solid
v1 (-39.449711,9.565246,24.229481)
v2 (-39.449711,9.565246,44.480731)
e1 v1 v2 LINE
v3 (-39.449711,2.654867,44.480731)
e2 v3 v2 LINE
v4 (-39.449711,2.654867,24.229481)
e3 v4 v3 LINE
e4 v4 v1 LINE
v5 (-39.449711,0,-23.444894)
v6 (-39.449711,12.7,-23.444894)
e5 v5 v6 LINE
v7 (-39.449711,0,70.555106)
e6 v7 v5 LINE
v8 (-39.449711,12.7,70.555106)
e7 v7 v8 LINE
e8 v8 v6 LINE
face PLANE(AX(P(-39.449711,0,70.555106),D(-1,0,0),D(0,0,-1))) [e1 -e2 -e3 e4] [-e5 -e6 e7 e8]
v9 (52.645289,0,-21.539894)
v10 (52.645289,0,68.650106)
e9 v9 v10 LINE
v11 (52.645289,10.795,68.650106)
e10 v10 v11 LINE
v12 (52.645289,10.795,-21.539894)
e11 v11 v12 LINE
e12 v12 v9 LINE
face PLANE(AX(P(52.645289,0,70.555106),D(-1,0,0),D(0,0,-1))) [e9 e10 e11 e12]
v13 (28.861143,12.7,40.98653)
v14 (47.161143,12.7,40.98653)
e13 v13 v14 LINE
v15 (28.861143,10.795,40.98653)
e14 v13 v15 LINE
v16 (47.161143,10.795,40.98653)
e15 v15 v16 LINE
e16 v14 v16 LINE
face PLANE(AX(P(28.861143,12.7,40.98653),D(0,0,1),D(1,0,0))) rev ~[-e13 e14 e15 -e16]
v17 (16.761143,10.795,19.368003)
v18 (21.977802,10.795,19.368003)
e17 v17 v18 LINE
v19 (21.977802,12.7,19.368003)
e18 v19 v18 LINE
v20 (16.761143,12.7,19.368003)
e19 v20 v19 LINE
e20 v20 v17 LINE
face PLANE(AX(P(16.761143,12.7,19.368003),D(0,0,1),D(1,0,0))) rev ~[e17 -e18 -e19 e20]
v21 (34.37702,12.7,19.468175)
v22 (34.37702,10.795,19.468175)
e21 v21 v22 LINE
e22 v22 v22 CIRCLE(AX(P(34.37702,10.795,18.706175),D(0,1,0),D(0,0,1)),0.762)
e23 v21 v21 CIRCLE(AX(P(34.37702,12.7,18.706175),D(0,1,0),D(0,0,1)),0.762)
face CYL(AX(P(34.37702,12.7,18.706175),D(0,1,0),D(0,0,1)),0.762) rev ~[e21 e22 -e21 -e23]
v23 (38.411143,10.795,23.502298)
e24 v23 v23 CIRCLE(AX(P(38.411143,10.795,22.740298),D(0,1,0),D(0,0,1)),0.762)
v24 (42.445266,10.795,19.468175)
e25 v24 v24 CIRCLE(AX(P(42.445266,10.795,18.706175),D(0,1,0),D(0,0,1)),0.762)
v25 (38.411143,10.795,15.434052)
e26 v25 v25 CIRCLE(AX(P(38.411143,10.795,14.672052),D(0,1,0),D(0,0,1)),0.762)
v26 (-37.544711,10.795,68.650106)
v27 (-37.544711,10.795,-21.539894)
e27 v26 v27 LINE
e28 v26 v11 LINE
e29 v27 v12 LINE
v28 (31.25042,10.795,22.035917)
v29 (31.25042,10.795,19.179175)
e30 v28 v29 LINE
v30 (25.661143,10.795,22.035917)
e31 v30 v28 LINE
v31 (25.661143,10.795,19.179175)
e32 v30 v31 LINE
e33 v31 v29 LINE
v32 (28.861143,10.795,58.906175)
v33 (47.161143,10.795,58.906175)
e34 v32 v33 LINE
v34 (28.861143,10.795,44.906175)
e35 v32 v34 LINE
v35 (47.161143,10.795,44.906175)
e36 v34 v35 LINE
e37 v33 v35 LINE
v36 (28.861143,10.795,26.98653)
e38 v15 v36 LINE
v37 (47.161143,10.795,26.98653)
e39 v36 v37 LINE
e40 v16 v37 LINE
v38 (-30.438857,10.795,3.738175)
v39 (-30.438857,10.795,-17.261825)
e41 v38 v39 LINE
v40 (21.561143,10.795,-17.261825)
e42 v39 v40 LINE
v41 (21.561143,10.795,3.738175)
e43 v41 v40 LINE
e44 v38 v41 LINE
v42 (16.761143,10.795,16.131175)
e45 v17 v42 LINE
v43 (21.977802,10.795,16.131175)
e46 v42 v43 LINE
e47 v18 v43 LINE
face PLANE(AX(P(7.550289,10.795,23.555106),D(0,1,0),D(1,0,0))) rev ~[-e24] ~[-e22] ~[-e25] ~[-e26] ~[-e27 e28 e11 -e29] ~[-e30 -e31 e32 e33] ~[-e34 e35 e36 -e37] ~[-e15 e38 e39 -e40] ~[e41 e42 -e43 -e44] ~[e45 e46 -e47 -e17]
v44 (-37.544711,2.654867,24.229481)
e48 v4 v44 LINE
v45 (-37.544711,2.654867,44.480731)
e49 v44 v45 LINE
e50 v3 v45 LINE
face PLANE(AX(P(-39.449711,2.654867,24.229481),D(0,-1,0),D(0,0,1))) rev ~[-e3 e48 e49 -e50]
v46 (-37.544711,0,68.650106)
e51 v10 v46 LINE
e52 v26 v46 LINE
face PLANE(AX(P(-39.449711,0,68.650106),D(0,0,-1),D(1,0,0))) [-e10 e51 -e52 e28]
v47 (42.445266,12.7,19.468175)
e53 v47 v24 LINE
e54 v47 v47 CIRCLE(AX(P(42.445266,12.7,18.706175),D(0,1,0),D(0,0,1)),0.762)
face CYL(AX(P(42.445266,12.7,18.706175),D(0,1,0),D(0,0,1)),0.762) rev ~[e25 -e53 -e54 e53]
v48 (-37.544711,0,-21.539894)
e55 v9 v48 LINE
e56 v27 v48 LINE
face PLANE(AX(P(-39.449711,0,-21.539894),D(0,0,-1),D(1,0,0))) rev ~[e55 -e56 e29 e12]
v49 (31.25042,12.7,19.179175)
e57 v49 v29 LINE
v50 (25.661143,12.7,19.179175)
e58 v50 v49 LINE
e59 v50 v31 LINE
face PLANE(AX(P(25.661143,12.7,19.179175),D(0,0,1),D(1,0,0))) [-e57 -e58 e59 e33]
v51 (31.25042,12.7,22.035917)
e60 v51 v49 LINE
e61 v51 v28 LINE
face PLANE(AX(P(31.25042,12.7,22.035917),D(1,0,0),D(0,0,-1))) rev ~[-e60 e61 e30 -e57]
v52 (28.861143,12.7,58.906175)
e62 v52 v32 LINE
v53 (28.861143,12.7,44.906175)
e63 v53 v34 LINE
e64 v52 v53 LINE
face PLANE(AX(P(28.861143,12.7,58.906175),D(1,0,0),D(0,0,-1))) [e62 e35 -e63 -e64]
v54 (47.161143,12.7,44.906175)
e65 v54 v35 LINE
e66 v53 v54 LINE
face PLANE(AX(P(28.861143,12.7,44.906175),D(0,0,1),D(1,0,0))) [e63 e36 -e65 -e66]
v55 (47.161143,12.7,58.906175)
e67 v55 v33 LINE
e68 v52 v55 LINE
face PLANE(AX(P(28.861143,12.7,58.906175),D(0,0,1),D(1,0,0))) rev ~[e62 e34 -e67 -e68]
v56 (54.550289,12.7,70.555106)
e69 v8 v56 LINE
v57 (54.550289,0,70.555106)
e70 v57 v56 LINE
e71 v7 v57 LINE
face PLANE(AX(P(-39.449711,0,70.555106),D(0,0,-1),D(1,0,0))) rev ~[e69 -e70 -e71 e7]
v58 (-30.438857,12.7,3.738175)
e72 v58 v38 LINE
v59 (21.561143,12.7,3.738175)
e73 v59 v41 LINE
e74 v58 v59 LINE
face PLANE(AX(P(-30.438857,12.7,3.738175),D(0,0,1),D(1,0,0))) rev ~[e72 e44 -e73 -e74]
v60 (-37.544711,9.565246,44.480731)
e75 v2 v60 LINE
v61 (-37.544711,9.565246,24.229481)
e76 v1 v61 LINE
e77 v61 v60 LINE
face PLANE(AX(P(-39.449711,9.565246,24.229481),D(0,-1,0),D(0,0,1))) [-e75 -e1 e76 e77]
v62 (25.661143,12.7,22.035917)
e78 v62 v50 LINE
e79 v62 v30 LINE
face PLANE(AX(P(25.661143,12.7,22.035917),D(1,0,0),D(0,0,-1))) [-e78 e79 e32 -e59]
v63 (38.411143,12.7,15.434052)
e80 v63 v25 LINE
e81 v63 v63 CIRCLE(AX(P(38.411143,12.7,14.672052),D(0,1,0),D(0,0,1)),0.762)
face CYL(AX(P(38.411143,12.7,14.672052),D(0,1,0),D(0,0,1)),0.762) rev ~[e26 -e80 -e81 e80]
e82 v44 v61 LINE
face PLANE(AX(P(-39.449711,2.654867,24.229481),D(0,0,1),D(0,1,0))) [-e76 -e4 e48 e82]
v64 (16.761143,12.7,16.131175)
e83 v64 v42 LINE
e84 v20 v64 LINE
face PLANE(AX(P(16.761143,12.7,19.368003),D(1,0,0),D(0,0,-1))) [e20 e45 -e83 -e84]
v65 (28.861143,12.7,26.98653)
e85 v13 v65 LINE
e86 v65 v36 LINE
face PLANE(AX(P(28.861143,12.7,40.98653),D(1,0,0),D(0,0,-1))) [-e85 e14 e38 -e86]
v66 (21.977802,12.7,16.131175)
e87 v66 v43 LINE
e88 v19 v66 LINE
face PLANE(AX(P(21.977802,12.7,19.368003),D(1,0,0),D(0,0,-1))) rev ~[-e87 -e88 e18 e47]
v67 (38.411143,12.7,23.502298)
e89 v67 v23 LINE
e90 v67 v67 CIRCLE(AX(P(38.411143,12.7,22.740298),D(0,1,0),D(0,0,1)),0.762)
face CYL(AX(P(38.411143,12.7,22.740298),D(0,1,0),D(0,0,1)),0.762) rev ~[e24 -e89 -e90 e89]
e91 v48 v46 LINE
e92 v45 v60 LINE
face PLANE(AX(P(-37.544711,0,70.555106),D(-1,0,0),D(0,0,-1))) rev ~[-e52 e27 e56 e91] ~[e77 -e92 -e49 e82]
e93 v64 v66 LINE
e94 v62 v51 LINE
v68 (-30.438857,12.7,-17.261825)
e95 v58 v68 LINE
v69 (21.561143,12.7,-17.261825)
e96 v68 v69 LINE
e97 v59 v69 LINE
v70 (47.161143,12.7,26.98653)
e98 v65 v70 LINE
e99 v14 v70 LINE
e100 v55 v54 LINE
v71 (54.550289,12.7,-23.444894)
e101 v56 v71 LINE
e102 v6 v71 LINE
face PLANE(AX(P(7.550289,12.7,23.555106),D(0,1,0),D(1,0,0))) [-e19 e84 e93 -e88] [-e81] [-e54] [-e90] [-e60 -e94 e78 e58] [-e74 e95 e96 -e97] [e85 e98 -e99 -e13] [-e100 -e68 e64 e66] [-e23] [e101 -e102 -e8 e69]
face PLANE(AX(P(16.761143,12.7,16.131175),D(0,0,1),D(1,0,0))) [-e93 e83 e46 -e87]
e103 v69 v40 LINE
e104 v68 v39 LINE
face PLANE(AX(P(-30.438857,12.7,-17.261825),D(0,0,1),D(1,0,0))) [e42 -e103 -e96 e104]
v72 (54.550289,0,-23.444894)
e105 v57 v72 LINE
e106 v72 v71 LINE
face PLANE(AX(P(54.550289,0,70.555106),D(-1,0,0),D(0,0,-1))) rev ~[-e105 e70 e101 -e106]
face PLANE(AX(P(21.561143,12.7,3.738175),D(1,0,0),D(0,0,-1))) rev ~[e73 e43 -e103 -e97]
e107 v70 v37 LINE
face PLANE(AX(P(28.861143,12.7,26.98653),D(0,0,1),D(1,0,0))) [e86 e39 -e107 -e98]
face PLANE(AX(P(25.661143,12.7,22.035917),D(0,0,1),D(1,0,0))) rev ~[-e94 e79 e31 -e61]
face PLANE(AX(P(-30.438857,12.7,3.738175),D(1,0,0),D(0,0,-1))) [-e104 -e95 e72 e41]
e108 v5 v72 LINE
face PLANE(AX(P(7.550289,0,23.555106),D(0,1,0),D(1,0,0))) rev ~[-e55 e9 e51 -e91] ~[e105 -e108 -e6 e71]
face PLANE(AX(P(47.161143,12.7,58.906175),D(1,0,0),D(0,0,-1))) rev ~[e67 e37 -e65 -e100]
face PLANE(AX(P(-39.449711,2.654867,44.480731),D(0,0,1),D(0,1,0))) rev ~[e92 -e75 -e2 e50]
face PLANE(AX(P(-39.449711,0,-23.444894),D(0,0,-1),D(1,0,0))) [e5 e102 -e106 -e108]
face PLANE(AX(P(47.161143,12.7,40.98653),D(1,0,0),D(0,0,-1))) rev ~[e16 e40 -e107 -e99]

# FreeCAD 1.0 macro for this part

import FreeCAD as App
import Part
import Sketcher
from FreeCAD import Vector


def faces_at(feature, points):
    """Names of the faces that lie closest to the given points."""
    faces = feature.Shape.Faces
    near = lambda p: min(range(len(faces)), key=lambda i: faces[i].distToShape(Part.Vertex(*p))[0])
    return sorted({f"Face{near(p) + 1}" for p in points})


def add_polygon(sketch, points):
    """Adds a closed chain of lines whose ends are joined by coincident constraints."""
    first, n = sketch.GeometryCount, len(points)
    for a, b in zip(points, points[1:] + points[:1]):
        sketch.addGeometry(Part.LineSegment(App.Vector(*a, 0), App.Vector(*b, 0)), False)
    for i in range(n):
        sketch.addConstraint(Sketcher.Constraint("Coincident", first + i, 2, first + (i + 1) % n, 1))

doc = App.newDocument("Part")
body = doc.addObject("PartDesign::Body", "Body")

sketch1 = doc.addObject("Sketcher::SketchObject", "Sketch")
body.addObject(sketch1)
sketch1.AttachmentSupport = (doc.XZ_Plane, [""])
sketch1.MapMode = "FlatFace"
add_polygon(sketch1, [(-39, -23), (-39, 71), (55, 71), (55, -23)])
sketch1.addConstraint([
    Sketcher.Constraint("Vertical", 0),
    Sketcher.Constraint("Horizontal", 1),
    Sketcher.Constraint("Vertical", 2),
    Sketcher.Constraint("Horizontal", 3),
    Sketcher.Constraint("Equal", 3, 0),
    Sketcher.Constraint("DistanceX", 1, 1, 1, 2, 94.0),
    Sketcher.Constraint("DistanceX", 0, 2, -1, 1, 39.449711),
    Sketcher.Constraint("DistanceY", -1, 1, 0, 2, 70.555106),
])
pad1 = doc.addObject("PartDesign::Pad", "Pad")
body.addObject(pad1)
pad1.Profile = sketch1
pad1.Length = 12.7
pad1.Reversed = True
doc.recompute()

thickness = doc.addObject("PartDesign::Thickness", "Thickness")
body.addObject(thickness)
thickness.Base = (pad1, faces_at(pad1, [(7.55, 0, 23.555)]))
thickness.Value = 1.905
thickness.Reversed = True
thickness.Join = "Intersection"

sketch2 = doc.addObject("Sketcher::SketchObject", "Sketch001")
body.addObject(sketch2)
sketch2.AttachmentSupport = (doc.XZ_Plane, [""])
sketch2.MapMode = "FlatFace"
sketch2.AttachmentOffset = App.Placement(Vector(0, 0, -12.7), App.Rotation())
add_polygon(sketch2, [(29, 27), (29, 41), (47, 41), (47, 27)])
add_polygon(sketch2, [(-30, -17), (-30, 4), (22, 4), (22, -17)])
add_polygon(sketch2, [(29, 45), (29, 59), (47, 59), (47, 45)])
sketch2.addConstraint([
    Sketcher.Constraint("Vertical", 0),
    Sketcher.Constraint("Horizontal", 1),
    Sketcher.Constraint("Vertical", 2),
    Sketcher.Constraint("Horizontal", 3),
    Sketcher.Constraint("Vertical", 4),
    Sketcher.Constraint("Horizontal", 5),
    Sketcher.Constraint("Vertical", 6),
    Sketcher.Constraint("Horizontal", 7),
    Sketcher.Constraint("Vertical", 8),
    Sketcher.Constraint("Horizontal", 9),
    Sketcher.Constraint("Vertical", 10),
    Sketcher.Constraint("Horizontal", 11),
    Sketcher.Constraint("Vertical", 3, 2, 8, 2),
    Sketcher.Constraint("Vertical", 2, 2, 9, 2),
    Sketcher.Constraint("Equal", 2, 8),
    Sketcher.Constraint("DistanceX", 5, 1, 5, 2, 52.0),
    Sketcher.Constraint("DistanceY", 0, 1, 0, 2, 14.0),
    Sketcher.Constraint("DistanceY", 4, 1, 4, 2, 21.0),
    Sketcher.Constraint("DistanceX", 1, 1, 1, 2, 18.3),
    Sketcher.Constraint("DistanceX", 4, 2, 3, 2, 59.3),
    Sketcher.Constraint("DistanceY", 5, 2, 8, 2, 55.168),
    Sketcher.Constraint("DistanceY", -1, 1, 0, 2, 40.98653),
    Sketcher.Constraint("DistanceX", -1, 1, 0, 2, 28.861143),
    Sketcher.Constraint("DistanceY", -1, 1, 4, 2, 3.738175),
])
pocket1 = doc.addObject("PartDesign::Pocket", "Pocket")
body.addObject(pocket1)
pocket1.Profile = sketch2
pocket1.Length = 2.54
pocket1.Reversed = True

sketch3 = doc.addObject("Sketcher::SketchObject", "Sketch002")
body.addObject(sketch3)
sketch3.AttachmentSupport = (doc.XZ_Plane, [""])
sketch3.MapMode = "FlatFace"
sketch3.AttachmentOffset = App.Placement(Vector(0, 0, -12.7), App.Rotation())
sketch3.addGeometry([
    Part.Circle(Vector(38.4, 14.7, 0), Vector(0, 0, 1), 0.8),
    Part.Circle(Vector(34.4, 18.7, 0), Vector(0, 0, 1), 0.8),
    Part.Circle(Vector(38.4, 22.7, 0), Vector(0, 0, 1), 0.8),
    Part.Circle(Vector(42.4, 18.7, 0), Vector(0, 0, 1), 0.8),
], False)
sketch3.addConstraint([
    Sketcher.Constraint("Equal", 0, 1),
    Sketcher.Constraint("Equal", 1, 2),
    Sketcher.Constraint("Equal", 2, 3),
    Sketcher.Constraint("Horizontal", 1, 3, 3, 3),
    Sketcher.Constraint("Vertical", 0, 3, 2, 3),
    Sketcher.Constraint("Diameter", 0, 1.524),
    Sketcher.Constraint("DistanceY", -1, 1, 0, 3, 14.672052),
    Sketcher.Constraint("DistanceX", -1, 1, 1, 3, 34.37702),
    Sketcher.Constraint("DistanceX", -1, 1, 0, 3, 38.411143),
    Sketcher.Constraint("DistanceY", -1, 1, 1, 3, 18.706175),
    Sketcher.Constraint("DistanceY", -1, 1, 2, 3, 22.740298),
    Sketcher.Constraint("DistanceX", -1, 1, 3, 3, 42.445266),
])
pocket2 = doc.addObject("PartDesign::Pocket", "Pocket001")
body.addObject(pocket2)
pocket2.Profile = sketch3
pocket2.Length = 2.54
pocket2.Reversed = True

sketch4 = doc.addObject("Sketcher::SketchObject", "Sketch003")
body.addObject(sketch4)
sketch4.AttachmentSupport = (doc.XZ_Plane, [""])
sketch4.MapMode = "FlatFace"
sketch4.AttachmentOffset = App.Placement(Vector(0, 0, -12.7), App.Rotation())
add_polygon(sketch4, [(16.8, 16.1), (16.8, 19.4), (22, 19.4), (22, 16.1)])
add_polygon(sketch4, [(25.7, 19.2), (25.7, 22), (31.3, 22), (31.3, 19.2)])
sketch4.addConstraint([
    Sketcher.Constraint("Vertical", 0),
    Sketcher.Constraint("Horizontal", 1),
    Sketcher.Constraint("Vertical", 2),
    Sketcher.Constraint("Horizontal", 3),
    Sketcher.Constraint("Vertical", 4),
    Sketcher.Constraint("Horizontal", 5),
    Sketcher.Constraint("Vertical", 6),
    Sketcher.Constraint("Horizontal", 7),
    Sketcher.Constraint("DistanceX", 0, 2, 4, 2, 8.9),
    Sketcher.Constraint("DistanceY", 2, 2, 6, 2, 3.048),
    Sketcher.Constraint("DistanceX", 1, 1, 1, 2, 5.216659),
    Sketcher.Constraint("DistanceY", 0, 1, 0, 2, 3.236829),
    Sketcher.Constraint("DistanceY", 4, 1, 4, 2, 2.856742),
    Sketcher.Constraint("DistanceX", -1, 1, 1, 2, 21.977802),
    Sketcher.Constraint("DistanceX", 5, 1, 5, 2, 5.589277),
    Sketcher.Constraint("DistanceY", -1, 1, 0, 2, 19.368003),
])
pocket3 = doc.addObject("PartDesign::Pocket", "Pocket002")
body.addObject(pocket3)
pocket3.Profile = sketch4
pocket3.Length = 2.54
pocket3.Reversed = True

sketch5 = doc.addObject("Sketcher::SketchObject", "Sketch004")
body.addObject(sketch5)
sketch5.AttachmentSupport = (doc.YZ_Plane, [""])
sketch5.MapMode = "FlatFace"
sketch5.AttachmentOffset = App.Placement(Vector(0, 0, -39.449711), App.Rotation())
add_polygon(sketch5, [(10, 24), (3, 24), (3, 44), (10, 44)])
sketch5.addConstraint([
    Sketcher.Constraint("Horizontal", 0),
    Sketcher.Constraint("Vertical", 1),
    Sketcher.Constraint("Horizontal", 2),
    Sketcher.Constraint("Vertical", 3),
    Sketcher.Constraint("DistanceX", 0, 2, 0, 1, 6.910379),
    Sketcher.Constraint("DistanceY", 1, 1, 1, 2, 20.25125),
    Sketcher.Constraint("DistanceY", -1, 1, 0, 2, 24.229481),
    Sketcher.Constraint("DistanceX", -1, 1, 0, 2, 2.654867),
])
pocket4 = doc.addObject("PartDesign::Pocket", "Pocket003")
body.addObject(pocket4)
pocket4.Profile = sketch5
pocket4.Length = 2.54
pocket4.Reversed = True

doc.recompute()
